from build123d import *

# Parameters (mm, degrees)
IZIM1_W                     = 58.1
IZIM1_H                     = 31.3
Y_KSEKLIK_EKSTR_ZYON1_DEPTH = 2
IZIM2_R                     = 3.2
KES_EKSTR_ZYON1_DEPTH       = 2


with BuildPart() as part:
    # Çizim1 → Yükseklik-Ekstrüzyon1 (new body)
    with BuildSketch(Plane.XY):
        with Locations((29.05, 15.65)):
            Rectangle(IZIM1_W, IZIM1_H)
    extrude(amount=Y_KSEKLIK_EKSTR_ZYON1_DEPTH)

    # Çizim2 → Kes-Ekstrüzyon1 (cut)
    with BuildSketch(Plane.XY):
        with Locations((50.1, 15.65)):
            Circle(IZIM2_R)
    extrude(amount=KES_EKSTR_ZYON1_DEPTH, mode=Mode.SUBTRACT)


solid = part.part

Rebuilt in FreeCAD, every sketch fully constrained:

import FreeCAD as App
import Part
import Sketcher
Q = App.Units.Quantity


def add_polygon(sketch, points):
    """Adds a closed chain of lines whose ends are joined by coincident constraints."""
    first, n = sketch.GeometryCount, len(points)
    for a, b in zip(points, points[1:] + points[:1]):
        sketch.addGeometry(Part.LineSegment(App.Vector(*a, 0), App.Vector(*b, 0)), False)
    for i in range(n):
        sketch.addConstraint(Sketcher.Constraint("Coincident", first + i, 2, first + (i + 1) % n, 1))

doc = App.newDocument("Part")
params = doc.addObject("Spreadsheet::Sheet", "Params")
for row, (alias, value) in enumerate([
    ("sketch1_width", "58.1 mm"),
    ("sketch1_height", "31.3 mm"),
    ("pad1_length", "2 mm"),
    ("sketch2_diameter", "6.4 mm"),
    ("pocket1_length", "2 mm"),
], start=1):
    params.set(f"A{row}", alias)
    params.set(f"B{row}", "=" + value)
    params.setAlias(f"B{row}", alias)

body = doc.addObject("PartDesign::Body", "Body")

# Sketch on XY plane
sketch1 = body.newObject("Sketcher::SketchObject", "Sketch")
sketch1.AttachmentSupport = (doc.getObject("XY_Plane"), [""])
sketch1.MapMode = "FlatFace"
add_polygon(sketch1, [(0, 31), (0, 0), (58, 0), (58, 31)])  # lines 0-3
sketch1.addConstraint([
    Sketcher.Constraint("Vertical", 0),
    Sketcher.Constraint("Horizontal", 1),
    Sketcher.Constraint("Vertical", 2),
    Sketcher.Constraint("Horizontal", 3),
    Sketcher.Constraint("Coincident", 0, 2, -1, 1),
    Sketcher.Constraint("DistanceX", 1, 1, 1, 2, Q("58.1 mm")),
    Sketcher.Constraint("DistanceY", 0, 2, 0, 1, Q("31.3 mm")),
])
sketch1.setExpression("Constraints[9]", "Params.sketch1_width")
sketch1.setExpression("Constraints[10]", "Params.sketch1_height")
pad1 = body.newObject("PartDesign::Pad", "Pad")
pad1.Profile = sketch1
pad1.setExpression("Length", "Params.pad1_length")

# Sketch on XY plane
sketch2 = body.newObject("Sketcher::SketchObject", "Sketch001")
sketch2.AttachmentSupport = (doc.getObject("XY_Plane"), [""])
sketch2.MapMode = "FlatFace"
sketch2.addGeometry(Part.Circle(App.Vector(50.1, 15.7, 0), App.Vector(0, 0, 1), 3.2), False)
sketch2.addConstraint([
    Sketcher.Constraint("Diameter", 0, Q("6.4 mm")),
    Sketcher.Constraint("DistanceX", -1, 1, 0, 3, Q("50.1 mm")),
    Sketcher.Constraint("DistanceY", -1, 1, 0, 3, Q("15.65 mm")),
])
sketch2.setExpression("Constraints[0]", "Params.sketch2_diameter")
pocket1 = body.newObject("PartDesign::Pocket", "Pocket")
pocket1.Profile = sketch2
pocket1.setExpression("Length", "Params.pocket1_length")
pocket1.Reversed = True

doc.recompute()
